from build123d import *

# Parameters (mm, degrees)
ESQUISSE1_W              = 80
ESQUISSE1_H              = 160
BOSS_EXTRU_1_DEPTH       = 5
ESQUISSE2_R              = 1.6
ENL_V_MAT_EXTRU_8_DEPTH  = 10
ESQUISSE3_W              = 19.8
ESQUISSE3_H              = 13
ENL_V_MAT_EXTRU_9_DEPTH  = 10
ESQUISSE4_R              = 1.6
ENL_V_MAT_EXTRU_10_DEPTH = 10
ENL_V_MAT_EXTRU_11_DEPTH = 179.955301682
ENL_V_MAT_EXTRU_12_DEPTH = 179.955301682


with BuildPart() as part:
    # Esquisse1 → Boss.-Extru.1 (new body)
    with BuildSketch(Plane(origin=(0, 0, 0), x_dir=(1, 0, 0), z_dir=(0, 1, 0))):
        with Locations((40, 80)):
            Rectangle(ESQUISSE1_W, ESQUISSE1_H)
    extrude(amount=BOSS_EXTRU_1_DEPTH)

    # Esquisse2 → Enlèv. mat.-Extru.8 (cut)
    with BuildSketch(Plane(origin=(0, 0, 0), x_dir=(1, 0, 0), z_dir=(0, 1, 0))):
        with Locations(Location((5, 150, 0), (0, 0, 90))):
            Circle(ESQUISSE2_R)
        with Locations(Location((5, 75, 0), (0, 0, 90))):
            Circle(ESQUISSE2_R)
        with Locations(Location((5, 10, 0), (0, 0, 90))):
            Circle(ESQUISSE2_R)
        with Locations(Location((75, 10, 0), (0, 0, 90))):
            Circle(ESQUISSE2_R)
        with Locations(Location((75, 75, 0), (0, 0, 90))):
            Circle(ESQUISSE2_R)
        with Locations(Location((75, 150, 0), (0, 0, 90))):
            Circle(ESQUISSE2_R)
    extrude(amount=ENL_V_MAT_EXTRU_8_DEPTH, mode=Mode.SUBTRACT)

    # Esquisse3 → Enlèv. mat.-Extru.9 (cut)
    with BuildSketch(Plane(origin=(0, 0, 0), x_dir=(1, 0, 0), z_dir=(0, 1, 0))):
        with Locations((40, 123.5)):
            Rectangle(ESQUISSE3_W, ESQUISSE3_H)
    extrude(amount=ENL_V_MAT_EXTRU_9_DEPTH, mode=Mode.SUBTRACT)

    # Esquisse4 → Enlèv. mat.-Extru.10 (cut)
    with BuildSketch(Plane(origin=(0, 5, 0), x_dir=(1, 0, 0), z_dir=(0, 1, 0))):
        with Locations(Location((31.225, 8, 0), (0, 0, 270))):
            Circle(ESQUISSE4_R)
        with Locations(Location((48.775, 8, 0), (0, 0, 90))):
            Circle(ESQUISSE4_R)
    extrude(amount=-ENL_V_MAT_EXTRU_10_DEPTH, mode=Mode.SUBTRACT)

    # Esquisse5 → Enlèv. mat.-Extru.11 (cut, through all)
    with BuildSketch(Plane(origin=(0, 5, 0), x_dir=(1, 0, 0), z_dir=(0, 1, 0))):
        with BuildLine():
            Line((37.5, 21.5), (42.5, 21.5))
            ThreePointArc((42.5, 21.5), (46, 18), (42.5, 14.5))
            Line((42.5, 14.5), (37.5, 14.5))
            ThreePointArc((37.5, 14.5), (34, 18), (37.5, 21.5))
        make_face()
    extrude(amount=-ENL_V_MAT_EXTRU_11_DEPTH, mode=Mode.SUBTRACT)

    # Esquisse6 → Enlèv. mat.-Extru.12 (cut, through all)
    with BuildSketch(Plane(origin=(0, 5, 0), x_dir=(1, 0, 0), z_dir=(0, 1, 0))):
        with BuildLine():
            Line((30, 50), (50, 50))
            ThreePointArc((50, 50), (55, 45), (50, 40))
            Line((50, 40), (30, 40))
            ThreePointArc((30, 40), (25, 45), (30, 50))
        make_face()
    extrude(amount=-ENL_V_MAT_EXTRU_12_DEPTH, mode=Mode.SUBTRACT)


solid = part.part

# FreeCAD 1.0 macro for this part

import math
import FreeCAD as App
import Part
import Sketcher
from FreeCAD import Vector


def add_polygon(sketch, points):
    """Adds a closed chain of lines whose ends are joined by coincident constraints."""
    first, n = sketch.GeometryCount, len(points)
    for a, b in zip(points, points[1:] + points[:1]):
        sketch.addGeometry(Part.LineSegment(App.Vector(*a, 0), App.Vector(*b, 0)), False)
    for i in range(n):
        sketch.addConstraint(Sketcher.Constraint("Coincident", first + i, 2, first + (i + 1) % n, 1))

doc = App.newDocument("Part")
params = doc.addObject("Spreadsheet::Sheet", "Params")
for row, (alias, value) in enumerate([
    ("sketch1_width", "80 mm"),
    ("sketch1_height", "160 mm"),
    ("pad1_length", "5 mm"),
    ("sketch2_diameter", "3.2 mm"),
    ("pocket1_length", "10 mm"),
    ("sketch3_height", "13 mm"),
    ("sketch3_width", "19.8 mm"),
    ("pocket2_length", "10 mm"),
    ("sketch4_diameter", "3.2 mm"),
    ("pocket3_length", "10 mm"),
    ("sketch5_radius", "3.5 mm"),
    ("sketch5_width", "5 mm"),
    ("sketch6_radius", "5 mm"),
    ("sketch6_width", "20 mm"),
], start=1):
    params.set(f"A{row}", alias)
    params.set(f"B{row}", "=" + value)
    params.setAlias(f"B{row}", alias)

body = doc.addObject("PartDesign::Body", "Body")

# Sketch on XZ plane
sketch1 = body.newObject("Sketcher::SketchObject", "Sketch")
sketch1.AttachmentSupport = (doc.getObject("XZ_Plane"), [""])
sketch1.MapMode = "FlatFace"
add_polygon(sketch1, [(0, -160), (0, 0), (80, 0), (80, -160)])  # lines 0-3
sketch1.addConstraint([
    Sketcher.Constraint("Vertical", 0),
    Sketcher.Constraint("Horizontal", 1),
    Sketcher.Constraint("Vertical", 2),
    Sketcher.Constraint("Horizontal", 3),
    Sketcher.Constraint("Coincident", 0, 2, -1, 1),
    Sketcher.Constraint("DistanceX", 1, 1, 1, 2, 80.0),
    Sketcher.Constraint("DistanceY", 0, 1, 0, 2, 160.0),
])
sketch1.setExpression("Constraints[9]", "Params.sketch1_width")
sketch1.setExpression("Constraints[10]", "Params.sketch1_height")
pad1 = body.newObject("PartDesign::Pad", "Pad")
pad1.Profile = sketch1
pad1.setExpression("Length", "Params.pad1_length")
pad1.Reversed = True

# Sketch on XZ plane
sketch2 = body.newObject("Sketcher::SketchObject", "Sketch001")
sketch2.AttachmentSupport = (doc.getObject("XZ_Plane"), [""])
sketch2.MapMode = "FlatFace"
sketch2.addGeometry([
    Part.Circle(Vector(5, -150, 0), Vector(0, 0, 1), 1.6),  # 0
    Part.Circle(Vector(5, -75, 0), Vector(0, 0, 1), 1.6),  # 1
    Part.Circle(Vector(5, -10, 0), Vector(0, 0, 1), 1.6),  # 2
    Part.Circle(Vector(75, -10, 0), Vector(0, 0, 1), 1.6),  # 3
    Part.Circle(Vector(75, -75, 0), Vector(0, 0, 1), 1.6),  # 4
    Part.Circle(Vector(75, -150, 0), Vector(0, 0, 1), 1.6),  # 5
], False)
sketch2.addConstraint([
    Sketcher.Constraint("Equal", 0, 1),
    Sketcher.Constraint("Equal", 1, 2),
    Sketcher.Constraint("Equal", 2, 3),
    Sketcher.Constraint("Equal", 3, 4),
    Sketcher.Constraint("Equal", 4, 5),
    Sketcher.Constraint("Horizontal", 2, 3, 3, 3),
    Sketcher.Constraint("Horizontal", 1, 3, 4, 3),
    Sketcher.Constraint("Horizontal", 0, 3, 5, 3),
    Sketcher.Constraint("Vertical", 0, 3, 1, 3),
    Sketcher.Constraint("Vertical", 1, 3, 2, 3),
    Sketcher.Constraint("Vertical", 3, 3, 4, 3),
    Sketcher.Constraint("Vertical", 4, 3, 5, 3),
    Sketcher.Constraint("Diameter", 0, 3.2),
    Sketcher.Constraint("DistanceX", -1, 1, 0, 3, 5.0),
    Sketcher.Constraint("DistanceY", 0, 3, -1, 1, 150.0),
    Sketcher.Constraint("DistanceY", 1, 3, -1, 1, 75.0),
    Sketcher.Constraint("DistanceY", 2, 3, -1, 1, 10.0),
    Sketcher.Constraint("DistanceX", -1, 1, 3, 3, 75.0),
])
sketch2.setExpression("Constraints[12]", "Params.sketch2_diameter")
pocket1 = body.newObject("PartDesign::Pocket", "Pocket")
pocket1.Profile = sketch2
pocket1.setExpression("Length", "Params.pocket1_length")

# Sketch on XZ plane
sketch3 = body.newObject("Sketcher::SketchObject", "Sketch002")
sketch3.AttachmentSupport = (doc.getObject("XZ_Plane"), [""])
sketch3.MapMode = "FlatFace"
add_polygon(sketch3, [(30, -130), (30, -117), (50, -117), (50, -130)])  # lines 0-3
sketch3.addConstraint([
    Sketcher.Constraint("Vertical", 0),
    Sketcher.Constraint("Horizontal", 1),
    Sketcher.Constraint("Vertical", 2),
    Sketcher.Constraint("Horizontal", 3),
    Sketcher.Constraint("DistanceY", 0, 1, 0, 2, 13.0),
    Sketcher.Constraint("DistanceX", 1, 1, 1, 2, 19.8),
    Sketcher.Constraint("DistanceY", 0, 2, -1, 1, 117.0),
    Sketcher.Constraint("DistanceX", -1, 1, 0, 2, 30.1),
])
sketch3.setExpression("Constraints[8]", "Params.sketch3_height")
sketch3.setExpression("Constraints[9]", "Params.sketch3_width")
pocket2 = body.newObject("PartDesign::Pocket", "Pocket001")
pocket2.Profile = sketch3
pocket2.setExpression("Length", "Params.pocket2_length")

# Sketch on XZ plane
sketch4 = body.newObject("Sketcher::SketchObject", "Sketch003")
sketch4.AttachmentSupport = (doc.getObject("XZ_Plane"), [""])
sketch4.MapMode = "FlatFace"
sketch4.AttachmentOffset = App.Placement(Vector(0, 0, -5), App.Rotation())
sketch4.addGeometry([
    Part.Circle(Vector(31.2, -8, 0), Vector(0, 0, 1), 1.6),
    Part.Circle(Vector(48.8, -8, 0), Vector(0, 0, 1), 1.6),
], False)
sketch4.addConstraint([
    Sketcher.Constraint("Equal", 0, 1),
    Sketcher.Constraint("Horizontal", 0, 3, 1, 3),
    Sketcher.Constraint("Diameter", 0, 3.2),
    Sketcher.Constraint("DistanceY", 0, 3, -1, 1, 8.0),
    Sketcher.Constraint("DistanceX", 0, 3, 1, 3, 17.55),
    Sketcher.Constraint("DistanceX", -1, 1, 0, 3, 31.225),
])
sketch4.setExpression("Constraints[2]", "Params.sketch4_diameter")
pocket3 = body.newObject("PartDesign::Pocket", "Pocket002")
pocket3.Profile = sketch4
pocket3.setExpression("Length", "Params.pocket3_length")
pocket3.Reversed = True

# Sketch on XZ plane
sketch5 = body.newObject("Sketcher::SketchObject", "Sketch004")
sketch5.AttachmentSupport = (doc.getObject("XZ_Plane"), [""])
sketch5.MapMode = "FlatFace"
sketch5.AttachmentOffset = App.Placement(Vector(0, 0, -5), App.Rotation())
sketch5.addGeometry([
    Part.LineSegment(Vector(42.5, -21.5, 0), Vector(37.5, -21.5, 0)),
    Part.ArcOfCircle(Part.Circle(Vector(37.5, -18, 0), Vector(0, 0, 1), 3.5), math.radians(90), math.radians(270)),
    Part.LineSegment(Vector(37.5, -14.5, 0), Vector(42.5, -14.5, 0)),
    Part.ArcOfCircle(Part.Circle(Vector(42.5, -18, 0), Vector(0, 0, 1), 3.5), math.radians(-90), math.radians(90)),
], False)
sketch5.addConstraint([
    Sketcher.Constraint("Tangent", 0, 2, 1, 2),
    Sketcher.Constraint("Tangent", 1, 1, 2, 1),
    Sketcher.Constraint("Tangent", 2, 2, 3, 2),
    Sketcher.Constraint("Tangent", 3, 1, 0, 1),
    Sketcher.Constraint("Horizontal", 0),
    Sketcher.Constraint("Horizontal", 2),
    Sketcher.Constraint("Radius", 1, 3.5),
    Sketcher.Constraint("DistanceX", 0, 2, 0, 1, 5.0),
    Sketcher.Constraint("DistanceY", 1, 3, -1, 1, 18.0),
    Sketcher.Constraint("DistanceX", -1, 1, 1, 3, 37.5),
])
sketch5.setExpression("Constraints[6]", "Params.sketch5_radius")
sketch5.setExpression("Constraints[7]", "Params.sketch5_width")
pocket4 = body.newObject("PartDesign::Pocket", "Pocket003")
pocket4.Profile = sketch5
pocket4.Type = "ThroughAll"
pocket4.Reversed = True

# Sketch on XZ plane
sketch6 = body.newObject("Sketcher::SketchObject", "Sketch005")
sketch6.AttachmentSupport = (doc.getObject("XZ_Plane"), [""])
sketch6.MapMode = "FlatFace"
sketch6.AttachmentOffset = App.Placement(Vector(0, 0, -5), App.Rotation())
sketch6.addGeometry([
    Part.LineSegment(Vector(50, -50, 0), Vector(30, -50, 0)),
    Part.ArcOfCircle(Part.Circle(Vector(30, -45, 0), Vector(0, 0, 1), 5), math.radians(90), math.radians(270)),
    Part.LineSegment(Vector(30, -40, 0), Vector(50, -40, 0)),
    Part.ArcOfCircle(Part.Circle(Vector(50, -45, 0), Vector(0, 0, 1), 5), math.radians(-90), math.radians(90)),
], False)
sketch6.addConstraint([
    Sketcher.Constraint("Tangent", 0, 2, 1, 2),
    Sketcher.Constraint("Tangent", 1, 1, 2, 1),
    Sketcher.Constraint("Tangent", 2, 2, 3, 2),
    Sketcher.Constraint("Tangent", 3, 1, 0, 1),
    Sketcher.Constraint("Horizontal", 0),
    Sketcher.Constraint("Horizontal", 2),
    Sketcher.Constraint("Radius", 1, 5.0),
    Sketcher.Constraint("DistanceX", 0, 2, 0, 1, 20.0),
    Sketcher.Constraint("DistanceX", -1, 1, 1, 3, 30.0),
    Sketcher.Constraint("DistanceY", 1, 3, -1, 1, 45.0),
])
sketch6.setExpression("Constraints[6]", "Params.sketch6_radius")
sketch6.setExpression("Constraints[7]", "Params.sketch6_width")
pocket5 = body.newObject("PartDesign::Pocket", "Pocket004")
pocket5.Profile = sketch6
pocket5.Type = "ThroughAll"
pocket5.Reversed = True

doc.recompute()
